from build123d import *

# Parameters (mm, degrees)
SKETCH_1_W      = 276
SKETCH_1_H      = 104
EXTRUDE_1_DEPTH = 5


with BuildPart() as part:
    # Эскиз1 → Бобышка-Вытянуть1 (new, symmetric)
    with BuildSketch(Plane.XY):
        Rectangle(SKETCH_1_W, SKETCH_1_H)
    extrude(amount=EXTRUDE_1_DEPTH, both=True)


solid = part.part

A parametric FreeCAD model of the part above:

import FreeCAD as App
import Part
import Sketcher
Q = App.Units.Quantity


def add_polygon(sketch, points):
    """Adds a closed chain of lines whose ends are joined by coincident constraints."""
    first, n = sketch.GeometryCount, len(points)
    for a, b in zip(points, points[1:] + points[:1]):
        sketch.addGeometry(Part.LineSegment(App.Vector(*a, 0), App.Vector(*b, 0)), False)
    for i in range(n):
        sketch.addConstraint(Sketcher.Constraint("Coincident", first + i, 2, first + (i + 1) % n, 1))

doc = App.newDocument("Part")
body = doc.addObject("PartDesign::Body", "Body")

# Sketch on XY plane
sketch1 = body.newObject("Sketcher::SketchObject", "Sketch")
sketch1.AttachmentSupport = (doc.getObject("XY_Plane"), [""])
sketch1.MapMode = "FlatFace"
add_polygon(sketch1, [(-138, 52), (-138, -52), (138, -52), (138, 52)])  # lines 0-3
sketch1.addConstraint(Sketcher.Constraint("Vertical", 0))
sketch1.addConstraint(Sketcher.Constraint("Horizontal", 1))
sketch1.addConstraint(Sketcher.Constraint("Vertical", 2))
sketch1.addConstraint(Sketcher.Constraint("Horizontal", 3))
sketch1.addConstraint(Sketcher.Constraint("Symmetric", 0, 2, 2, 2, -1, 1))
sketch1.addConstraint(Sketcher.Constraint("DistanceX", 1, 1, 1, 2, Q("276 mm")))
sketch1.addConstraint(Sketcher.Constraint("DistanceY", 0, 2, 0, 1, Q("104 mm")))
pad1 = body.newObject("PartDesign::Pad", "Pad")
pad1.Profile = sketch1
pad1.Length = 10
pad1.Midplane = True

doc.recompute()
